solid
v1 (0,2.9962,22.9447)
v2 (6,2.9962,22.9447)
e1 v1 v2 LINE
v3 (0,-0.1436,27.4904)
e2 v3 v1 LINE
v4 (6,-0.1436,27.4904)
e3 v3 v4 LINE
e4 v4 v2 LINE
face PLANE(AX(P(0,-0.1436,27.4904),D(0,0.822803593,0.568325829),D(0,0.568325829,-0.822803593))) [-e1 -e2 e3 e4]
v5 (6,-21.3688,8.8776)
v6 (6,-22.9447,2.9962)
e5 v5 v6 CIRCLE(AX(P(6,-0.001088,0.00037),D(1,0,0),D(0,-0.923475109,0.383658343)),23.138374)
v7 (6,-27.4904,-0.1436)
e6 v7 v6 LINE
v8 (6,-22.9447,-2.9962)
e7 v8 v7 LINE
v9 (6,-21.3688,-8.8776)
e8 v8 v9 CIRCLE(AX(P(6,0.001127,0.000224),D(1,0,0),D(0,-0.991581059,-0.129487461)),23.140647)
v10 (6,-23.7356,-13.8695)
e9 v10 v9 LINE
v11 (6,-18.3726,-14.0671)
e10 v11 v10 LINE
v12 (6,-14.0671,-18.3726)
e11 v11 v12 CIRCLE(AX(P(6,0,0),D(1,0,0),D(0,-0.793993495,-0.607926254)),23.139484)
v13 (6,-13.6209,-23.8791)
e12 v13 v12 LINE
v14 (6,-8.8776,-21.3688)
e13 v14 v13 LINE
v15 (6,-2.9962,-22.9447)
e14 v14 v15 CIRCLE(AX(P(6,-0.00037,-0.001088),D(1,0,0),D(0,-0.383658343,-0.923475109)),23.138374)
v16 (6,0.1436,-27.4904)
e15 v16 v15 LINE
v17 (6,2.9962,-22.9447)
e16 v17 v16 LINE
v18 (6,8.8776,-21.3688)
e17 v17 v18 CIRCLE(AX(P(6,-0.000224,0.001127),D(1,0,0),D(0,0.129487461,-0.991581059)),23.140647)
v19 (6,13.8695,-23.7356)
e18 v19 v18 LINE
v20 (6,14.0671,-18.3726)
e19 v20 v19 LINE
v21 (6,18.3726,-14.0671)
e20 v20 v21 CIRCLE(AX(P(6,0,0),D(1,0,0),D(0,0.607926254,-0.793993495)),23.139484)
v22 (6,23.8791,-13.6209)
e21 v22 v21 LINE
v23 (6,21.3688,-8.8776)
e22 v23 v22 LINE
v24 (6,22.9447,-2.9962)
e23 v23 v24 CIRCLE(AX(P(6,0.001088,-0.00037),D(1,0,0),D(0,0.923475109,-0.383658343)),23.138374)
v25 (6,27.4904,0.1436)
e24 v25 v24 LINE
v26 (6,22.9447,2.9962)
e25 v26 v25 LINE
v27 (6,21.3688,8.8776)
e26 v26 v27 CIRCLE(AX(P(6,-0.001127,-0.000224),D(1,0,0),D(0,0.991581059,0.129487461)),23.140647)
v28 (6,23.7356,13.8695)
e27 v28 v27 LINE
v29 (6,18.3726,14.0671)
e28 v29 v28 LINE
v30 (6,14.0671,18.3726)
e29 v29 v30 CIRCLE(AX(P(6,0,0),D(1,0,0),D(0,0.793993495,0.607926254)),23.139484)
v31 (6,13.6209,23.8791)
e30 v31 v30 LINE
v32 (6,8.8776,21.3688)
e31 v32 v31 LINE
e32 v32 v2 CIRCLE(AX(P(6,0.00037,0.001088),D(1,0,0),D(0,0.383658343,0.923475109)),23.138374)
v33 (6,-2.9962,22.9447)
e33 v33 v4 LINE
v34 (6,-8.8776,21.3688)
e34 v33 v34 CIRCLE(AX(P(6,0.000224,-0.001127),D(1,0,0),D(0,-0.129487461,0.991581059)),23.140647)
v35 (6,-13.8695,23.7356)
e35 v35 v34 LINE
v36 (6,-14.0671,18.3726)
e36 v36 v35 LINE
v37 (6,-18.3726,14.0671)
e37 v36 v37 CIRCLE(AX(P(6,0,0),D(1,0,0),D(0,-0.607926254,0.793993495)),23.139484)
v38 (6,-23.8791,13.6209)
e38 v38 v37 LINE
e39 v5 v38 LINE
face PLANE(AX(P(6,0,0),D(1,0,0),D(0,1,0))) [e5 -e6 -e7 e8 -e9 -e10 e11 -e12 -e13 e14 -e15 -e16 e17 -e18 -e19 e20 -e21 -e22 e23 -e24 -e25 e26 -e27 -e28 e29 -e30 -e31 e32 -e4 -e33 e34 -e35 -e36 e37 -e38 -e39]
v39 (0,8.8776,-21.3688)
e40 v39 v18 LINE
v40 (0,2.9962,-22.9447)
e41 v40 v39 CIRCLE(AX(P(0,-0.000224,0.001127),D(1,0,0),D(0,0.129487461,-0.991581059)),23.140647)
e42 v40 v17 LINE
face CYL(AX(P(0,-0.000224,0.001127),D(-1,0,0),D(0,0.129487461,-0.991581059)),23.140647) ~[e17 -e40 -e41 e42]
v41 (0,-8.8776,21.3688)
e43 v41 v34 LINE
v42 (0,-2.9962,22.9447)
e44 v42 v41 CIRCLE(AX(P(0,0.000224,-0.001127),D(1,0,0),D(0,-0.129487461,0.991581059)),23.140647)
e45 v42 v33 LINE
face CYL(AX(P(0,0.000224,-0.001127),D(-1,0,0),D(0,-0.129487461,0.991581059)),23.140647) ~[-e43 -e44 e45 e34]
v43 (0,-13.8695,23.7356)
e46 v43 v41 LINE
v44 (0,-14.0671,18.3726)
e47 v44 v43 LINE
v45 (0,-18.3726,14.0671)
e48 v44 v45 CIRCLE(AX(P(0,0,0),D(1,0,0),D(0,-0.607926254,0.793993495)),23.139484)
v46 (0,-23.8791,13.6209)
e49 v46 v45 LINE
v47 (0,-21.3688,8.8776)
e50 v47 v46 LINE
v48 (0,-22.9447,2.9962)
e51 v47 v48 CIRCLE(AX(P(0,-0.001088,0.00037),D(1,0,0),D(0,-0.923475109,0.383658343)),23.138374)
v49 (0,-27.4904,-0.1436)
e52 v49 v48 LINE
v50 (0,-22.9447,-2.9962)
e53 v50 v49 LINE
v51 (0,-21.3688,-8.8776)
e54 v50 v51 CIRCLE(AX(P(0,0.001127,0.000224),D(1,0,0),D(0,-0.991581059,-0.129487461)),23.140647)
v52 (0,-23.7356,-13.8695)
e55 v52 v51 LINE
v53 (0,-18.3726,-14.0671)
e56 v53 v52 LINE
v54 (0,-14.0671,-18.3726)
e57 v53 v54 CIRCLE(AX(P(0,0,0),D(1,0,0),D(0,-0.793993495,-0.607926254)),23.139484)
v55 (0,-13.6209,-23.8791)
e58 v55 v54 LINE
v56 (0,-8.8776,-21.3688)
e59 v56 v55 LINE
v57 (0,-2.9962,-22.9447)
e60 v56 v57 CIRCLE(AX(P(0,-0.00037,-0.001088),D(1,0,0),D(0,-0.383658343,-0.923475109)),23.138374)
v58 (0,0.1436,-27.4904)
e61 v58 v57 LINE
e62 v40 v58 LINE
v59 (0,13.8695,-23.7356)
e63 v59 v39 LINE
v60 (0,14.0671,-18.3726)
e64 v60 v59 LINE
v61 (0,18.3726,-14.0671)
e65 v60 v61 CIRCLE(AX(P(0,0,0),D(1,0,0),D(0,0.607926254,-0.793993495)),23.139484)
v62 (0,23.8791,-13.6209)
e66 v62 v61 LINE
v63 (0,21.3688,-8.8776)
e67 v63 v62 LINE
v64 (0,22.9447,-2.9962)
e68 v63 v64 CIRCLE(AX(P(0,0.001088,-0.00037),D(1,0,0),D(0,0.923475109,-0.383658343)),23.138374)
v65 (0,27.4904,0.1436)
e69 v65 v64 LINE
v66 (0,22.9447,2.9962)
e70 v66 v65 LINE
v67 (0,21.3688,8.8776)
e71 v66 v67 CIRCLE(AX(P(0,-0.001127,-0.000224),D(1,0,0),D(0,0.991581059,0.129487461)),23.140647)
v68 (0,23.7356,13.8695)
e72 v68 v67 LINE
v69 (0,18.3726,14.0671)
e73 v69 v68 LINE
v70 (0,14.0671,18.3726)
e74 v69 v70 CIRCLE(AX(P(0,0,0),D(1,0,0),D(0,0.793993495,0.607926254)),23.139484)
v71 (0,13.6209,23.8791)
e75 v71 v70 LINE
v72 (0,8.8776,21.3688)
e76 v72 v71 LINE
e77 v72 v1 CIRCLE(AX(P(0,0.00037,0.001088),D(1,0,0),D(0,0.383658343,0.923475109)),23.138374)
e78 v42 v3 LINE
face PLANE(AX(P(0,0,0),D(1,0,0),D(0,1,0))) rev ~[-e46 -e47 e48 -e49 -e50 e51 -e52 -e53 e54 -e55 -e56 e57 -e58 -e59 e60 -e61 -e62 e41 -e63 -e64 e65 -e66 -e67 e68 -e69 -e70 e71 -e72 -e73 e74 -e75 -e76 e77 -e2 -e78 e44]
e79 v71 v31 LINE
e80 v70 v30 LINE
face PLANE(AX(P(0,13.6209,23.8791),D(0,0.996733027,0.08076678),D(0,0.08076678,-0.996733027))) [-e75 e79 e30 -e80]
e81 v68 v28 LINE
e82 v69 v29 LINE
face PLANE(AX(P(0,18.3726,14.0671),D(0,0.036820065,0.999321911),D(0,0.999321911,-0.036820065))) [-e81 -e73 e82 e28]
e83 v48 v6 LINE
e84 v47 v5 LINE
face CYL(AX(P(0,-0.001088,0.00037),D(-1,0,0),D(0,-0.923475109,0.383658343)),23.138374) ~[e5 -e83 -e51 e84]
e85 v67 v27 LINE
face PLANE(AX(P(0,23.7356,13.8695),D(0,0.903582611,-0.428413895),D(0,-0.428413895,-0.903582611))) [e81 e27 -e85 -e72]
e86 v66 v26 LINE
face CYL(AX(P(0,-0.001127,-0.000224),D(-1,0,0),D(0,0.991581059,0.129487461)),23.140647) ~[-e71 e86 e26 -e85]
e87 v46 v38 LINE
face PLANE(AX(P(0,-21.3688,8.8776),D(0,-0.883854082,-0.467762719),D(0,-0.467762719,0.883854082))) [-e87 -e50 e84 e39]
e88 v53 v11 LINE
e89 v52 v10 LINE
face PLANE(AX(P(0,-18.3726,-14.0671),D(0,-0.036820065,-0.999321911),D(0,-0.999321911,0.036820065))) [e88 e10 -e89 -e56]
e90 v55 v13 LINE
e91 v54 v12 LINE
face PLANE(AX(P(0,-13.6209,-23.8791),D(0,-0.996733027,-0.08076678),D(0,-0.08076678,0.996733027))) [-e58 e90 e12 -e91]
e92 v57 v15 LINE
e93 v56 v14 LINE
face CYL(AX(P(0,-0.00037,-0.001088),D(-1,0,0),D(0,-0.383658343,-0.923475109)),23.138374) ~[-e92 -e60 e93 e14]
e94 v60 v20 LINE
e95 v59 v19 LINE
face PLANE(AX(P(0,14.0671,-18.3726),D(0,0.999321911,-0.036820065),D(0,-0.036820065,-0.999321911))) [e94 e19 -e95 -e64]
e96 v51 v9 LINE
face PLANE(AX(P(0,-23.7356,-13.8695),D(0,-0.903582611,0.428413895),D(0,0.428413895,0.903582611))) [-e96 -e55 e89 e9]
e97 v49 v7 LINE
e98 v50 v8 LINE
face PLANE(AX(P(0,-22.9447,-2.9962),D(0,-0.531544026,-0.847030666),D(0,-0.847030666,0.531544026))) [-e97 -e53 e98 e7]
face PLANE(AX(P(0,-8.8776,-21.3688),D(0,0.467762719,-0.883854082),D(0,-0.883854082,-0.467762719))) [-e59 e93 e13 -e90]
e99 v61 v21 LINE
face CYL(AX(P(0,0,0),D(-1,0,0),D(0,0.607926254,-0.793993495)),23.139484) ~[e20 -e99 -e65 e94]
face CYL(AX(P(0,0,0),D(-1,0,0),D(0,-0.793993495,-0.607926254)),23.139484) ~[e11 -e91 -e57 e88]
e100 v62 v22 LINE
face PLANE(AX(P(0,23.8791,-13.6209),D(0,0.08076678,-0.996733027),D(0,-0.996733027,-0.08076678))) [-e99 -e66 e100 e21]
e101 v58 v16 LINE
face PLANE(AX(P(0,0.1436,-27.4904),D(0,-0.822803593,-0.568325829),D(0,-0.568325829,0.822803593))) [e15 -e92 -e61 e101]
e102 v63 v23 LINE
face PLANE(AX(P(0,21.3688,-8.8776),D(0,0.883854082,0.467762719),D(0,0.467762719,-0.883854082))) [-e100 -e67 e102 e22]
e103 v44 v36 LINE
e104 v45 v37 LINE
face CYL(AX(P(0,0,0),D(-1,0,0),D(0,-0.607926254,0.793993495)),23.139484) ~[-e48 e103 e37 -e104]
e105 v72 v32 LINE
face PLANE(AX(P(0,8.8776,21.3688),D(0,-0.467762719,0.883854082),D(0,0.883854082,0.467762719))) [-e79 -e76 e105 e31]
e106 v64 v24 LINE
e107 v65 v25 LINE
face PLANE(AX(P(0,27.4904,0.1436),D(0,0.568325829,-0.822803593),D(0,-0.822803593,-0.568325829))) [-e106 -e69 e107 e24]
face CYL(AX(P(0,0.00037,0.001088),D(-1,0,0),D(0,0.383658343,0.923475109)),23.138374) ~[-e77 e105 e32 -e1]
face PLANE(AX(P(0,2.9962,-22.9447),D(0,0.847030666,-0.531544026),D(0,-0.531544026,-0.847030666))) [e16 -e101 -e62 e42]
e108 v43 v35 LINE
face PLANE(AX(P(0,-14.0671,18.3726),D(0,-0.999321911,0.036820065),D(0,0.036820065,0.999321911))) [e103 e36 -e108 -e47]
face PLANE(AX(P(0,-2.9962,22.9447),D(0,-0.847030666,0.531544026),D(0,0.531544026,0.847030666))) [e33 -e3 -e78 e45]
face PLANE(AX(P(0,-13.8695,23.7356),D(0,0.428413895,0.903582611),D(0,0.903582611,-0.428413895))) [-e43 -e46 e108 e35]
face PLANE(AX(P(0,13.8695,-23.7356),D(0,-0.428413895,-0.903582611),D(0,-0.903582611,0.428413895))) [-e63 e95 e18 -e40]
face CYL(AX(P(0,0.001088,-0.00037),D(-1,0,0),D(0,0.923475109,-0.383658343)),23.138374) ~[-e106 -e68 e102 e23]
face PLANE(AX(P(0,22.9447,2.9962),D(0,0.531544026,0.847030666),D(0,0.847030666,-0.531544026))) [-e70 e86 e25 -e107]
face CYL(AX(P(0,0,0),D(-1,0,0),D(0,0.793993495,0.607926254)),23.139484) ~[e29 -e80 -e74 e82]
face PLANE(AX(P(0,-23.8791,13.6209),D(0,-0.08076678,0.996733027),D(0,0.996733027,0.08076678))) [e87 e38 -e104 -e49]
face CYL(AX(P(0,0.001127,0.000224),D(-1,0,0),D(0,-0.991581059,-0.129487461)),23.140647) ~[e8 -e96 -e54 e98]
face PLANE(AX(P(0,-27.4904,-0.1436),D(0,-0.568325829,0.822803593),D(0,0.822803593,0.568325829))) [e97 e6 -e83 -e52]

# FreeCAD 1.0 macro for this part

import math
import FreeCAD as App
import Part
import Sketcher

V = App.Vector
Q = App.Units.Quantity

doc = App.newDocument("Part")
body = doc.addObject("PartDesign::Body", "Body")

sketch1 = body.newObject("Sketcher::SketchObject", "Sketch")
sketch1.AttachmentSupport = (doc.getObject("YZ_Plane"), [""])
sketch1.MapMode = "FlatFace"
sketch1.addGeometry([
    Part.LineSegment(V(27.4904, 0.1436, 0), V(22.9447, 2.9962, 0)),
    Part.ArcOfCircle(Part.Circle(V(-0.001127, -0.000224, 0), V(0, 0, 1), 23.140647), math.radians(7.439976), math.radians(22.559727)),
    Part.LineSegment(V(21.3688, 8.8776, 0), V(23.7356, 13.8695, 0)),
    Part.LineSegment(V(23.7356, 13.8695, 0), V(18.3726, 14.0671, 0)),
    Part.ArcOfCircle(Part.Circle(V(0, 0, 0), V(0, 0, 1), 23.139484), math.radians(37.439708), math.radians(52.560292)),
    Part.LineSegment(V(14.0671, 18.3726, 0), V(13.6209, 23.8791, 0)),
    Part.LineSegment(V(13.6209, 23.8791, 0), V(8.8776, 21.3688, 0)),
    Part.ArcOfCircle(Part.Circle(V(0.00037, 0.001088, 0), V(0, 0, 1), 23.138374), math.radians(67.439526), math.radians(82.560772)),
    Part.LineSegment(V(2.9962, 22.9447, 0), V(-0.1436, 27.4904, 0)),
    Part.LineSegment(V(-0.1436, 27.4904, 0), V(-2.9962, 22.9447, 0)),
    Part.ArcOfCircle(Part.Circle(V(0.000224, -0.001127, 0), V(0, 0, 1), 23.140647), math.radians(97.439976), math.radians(112.559727)),
    Part.LineSegment(V(-8.8776, 21.3688, 0), V(-13.8695, 23.7356, 0)),
    Part.LineSegment(V(-13.8695, 23.7356, 0), V(-14.0671, 18.3726, 0)),
    Part.ArcOfCircle(Part.Circle(V(0, 0, 0), V(0, 0, 1), 23.139484), math.radians(127.439708), math.radians(142.560292)),
    Part.LineSegment(V(-18.3726, 14.0671, 0), V(-23.8791, 13.6209, 0)),
    Part.LineSegment(V(-23.8791, 13.6209, 0), V(-21.3688, 8.8776, 0)),
    Part.ArcOfCircle(Part.Circle(V(-0.001088, 0.00037, 0), V(0, 0, 1), 23.138374), math.radians(157.439526), math.radians(172.560772)),
    Part.LineSegment(V(-22.9447, 2.9962, 0), V(-27.4904, -0.1436, 0)),
    Part.LineSegment(V(-27.4904, -0.1436, 0), V(-22.9447, -2.9962, 0)),
    Part.ArcOfCircle(Part.Circle(V(0.001127, 0.000224, 0), V(0, 0, 1), 23.140647), math.radians(-172.560024), math.radians(-157.440273)),
    Part.LineSegment(V(-21.3688, -8.8776, 0), V(-23.7356, -13.8695, 0)),
    Part.LineSegment(V(-23.7356, -13.8695, 0), V(-18.3726, -14.0671, 0)),
    Part.ArcOfCircle(Part.Circle(V(0, 0, 0), V(0, 0, 1), 23.139484), math.radians(-142.560292), math.radians(-127.439708)),
    Part.LineSegment(V(-14.0671, -18.3726, 0), V(-13.6209, -23.8791, 0)),
    Part.LineSegment(V(-13.6209, -23.8791, 0), V(-8.8776, -21.3688, 0)),
    Part.ArcOfCircle(Part.Circle(V(-0.00037, -0.001088, 0), V(0, 0, 1), 23.138374), math.radians(-112.560474), math.radians(-97.439228)),
    Part.LineSegment(V(-2.9962, -22.9447, 0), V(0.1436, -27.4904, 0)),
    Part.LineSegment(V(0.1436, -27.4904, 0), V(2.9962, -22.9447, 0)),
    Part.ArcOfCircle(Part.Circle(V(-0.000224, 0.001127, 0), V(0, 0, 1), 23.140647), math.radians(-82.560024), math.radians(-67.440273)),
    Part.LineSegment(V(8.8776, -21.3688, 0), V(13.8695, -23.7356, 0)),
    Part.LineSegment(V(13.8695, -23.7356, 0), V(14.0671, -18.3726, 0)),
    Part.ArcOfCircle(Part.Circle(V(0, 0, 0), V(0, 0, 1), 23.139484), math.radians(-52.560292), math.radians(-37.439708)),
    Part.LineSegment(V(18.3726, -14.0671, 0), V(23.8791, -13.6209, 0)),
    Part.LineSegment(V(23.8791, -13.6209, 0), V(21.3688, -8.8776, 0)),
    Part.ArcOfCircle(Part.Circle(V(0.001088, -0.00037, 0), V(0, 0, 1), 23.138374), math.radians(-22.560474), math.radians(-7.439228)),
    Part.LineSegment(V(22.9447, -2.9962, 0), V(27.4904, 0.1436, 0)),
], False)
sketch1.addConstraint([
    Sketcher.Constraint("Coincident", 0, 2, 1, 1),
    Sketcher.Constraint("Coincident", 1, 2, 2, 1),
    Sketcher.Constraint("Coincident", 2, 2, 3, 1),
    Sketcher.Constraint("Coincident", 3, 2, 4, 1),
    Sketcher.Constraint("Coincident", 4, 2, 5, 1),
    Sketcher.Constraint("Coincident", 5, 2, 6, 1),
    Sketcher.Constraint("Coincident", 6, 2, 7, 1),
    Sketcher.Constraint("Coincident", 7, 2, 8, 1),
    Sketcher.Constraint("Coincident", 8, 2, 9, 1),
    Sketcher.Constraint("Coincident", 9, 2, 10, 1),
    Sketcher.Constraint("Coincident", 10, 2, 11, 1),
    Sketcher.Constraint("Coincident", 11, 2, 12, 1),
    Sketcher.Constraint("Coincident", 12, 2, 13, 1),
    Sketcher.Constraint("Coincident", 13, 2, 14, 1),
    Sketcher.Constraint("Coincident", 14, 2, 15, 1),
    Sketcher.Constraint("Coincident", 15, 2, 16, 1),
    Sketcher.Constraint("Coincident", 16, 2, 17, 1),
    Sketcher.Constraint("Coincident", 17, 2, 18, 1),
    Sketcher.Constraint("Coincident", 18, 2, 19, 1),
    Sketcher.Constraint("Coincident", 19, 2, 20, 1),
    Sketcher.Constraint("Coincident", 20, 2, 21, 1),
    Sketcher.Constraint("Coincident", 21, 2, 22, 1),
    Sketcher.Constraint("Coincident", 22, 2, 23, 1),
    Sketcher.Constraint("Coincident", 23, 2, 24, 1),
    Sketcher.Constraint("Coincident", 24, 2, 25, 1),
    Sketcher.Constraint("Coincident", 25, 2, 26, 1),
    Sketcher.Constraint("Coincident", 26, 2, 27, 1),
    Sketcher.Constraint("Coincident", 27, 2, 28, 1),
    Sketcher.Constraint("Coincident", 28, 2, 29, 1),
    Sketcher.Constraint("Coincident", 29, 2, 30, 1),
    Sketcher.Constraint("Coincident", 30, 2, 31, 1),
    Sketcher.Constraint("Coincident", 31, 2, 32, 1),
    Sketcher.Constraint("Coincident", 32, 2, 33, 1),
    Sketcher.Constraint("Coincident", 33, 2, 34, 1),
    Sketcher.Constraint("Coincident", 34, 2, 35, 1),
    Sketcher.Constraint("Coincident", 35, 2, 0, 1),
    Sketcher.Constraint("Coincident", 4, 3, -1, 1),
    Sketcher.Constraint("Coincident", 13, 3, -1, 1),
    Sketcher.Constraint("Coincident", 22, 3, -1, 1),
    Sketcher.Constraint("Coincident", 31, 3, -1, 1),
    Sketcher.Constraint("Equal", 1, 10),
    Sketcher.Constraint("Equal", 4, 13),
    Sketcher.Constraint("Equal", 7, 16),
    Sketcher.Constraint("Equal", 10, 19),
    Sketcher.Constraint("Equal", 13, 22),
    Sketcher.Constraint("Equal", 16, 25),
    Sketcher.Constraint("Equal", 19, 28),
    Sketcher.Constraint("Equal", 22, 31),
    Sketcher.Constraint("Equal", 25, 34),
    Sketcher.Constraint("Symmetric", 1, 3, 19, 3, -1, 1),
    Sketcher.Constraint("Symmetric", 7, 3, 25, 3, -1, 1),
    Sketcher.Constraint("Symmetric", 10, 3, 28, 3, -1, 1),
    Sketcher.Constraint("Symmetric", 16, 3, 34, 3, -1, 1),
    Sketcher.Constraint("Symmetric", 2, 2, 20, 2, -1, 1),
    Sketcher.Constraint("Symmetric", 5, 2, 23, 2, -1, 1),
    Sketcher.Constraint("Symmetric", 8, 2, 26, 2, -1, 1),
    Sketcher.Constraint("Symmetric", 11, 2, 29, 2, -1, 1),
    Sketcher.Constraint("Symmetric", 14, 2, 32, 2, -1, 1),
    Sketcher.Constraint("Symmetric", 17, 2, 35, 2, -1, 1),
    Sketcher.Constraint("Symmetric", 16, 3, 19, 3, -2),
    Sketcher.Constraint("Symmetric", 10, 3, 25, 3, -2),
    Sketcher.Constraint("Symmetric", 7, 2, 9, 2, -2),
    Sketcher.Constraint("Symmetric", 6, 2, 10, 2, -2),
    Sketcher.Constraint("Symmetric", 1, 2, 15, 2, -2),
    Sketcher.Constraint("Symmetric", 0, 2, 16, 2, -2),
    Sketcher.Constraint("Perpendicular", 0, 9),
    Sketcher.Constraint("Perpendicular", 2, 11),
    Sketcher.Constraint("Perpendicular", 3, 12),
    Sketcher.Constraint("Perpendicular", 5, 14),
    Sketcher.Constraint("Perpendicular", 6, 15),
    Sketcher.Constraint("Perpendicular", 8, 17),
    Sketcher.Constraint("Perpendicular", 9, 18),
    Sketcher.Constraint("Perpendicular", 11, 20),
    Sketcher.Constraint("Perpendicular", 12, 21),
    Sketcher.Constraint("Perpendicular", 14, 23),
    Sketcher.Constraint("Perpendicular", 15, 24),
    Sketcher.Constraint("Perpendicular", 17, 26),
    Sketcher.Constraint("Perpendicular", 18, 27),
    Sketcher.Constraint("Perpendicular", 20, 29),
    Sketcher.Constraint("Perpendicular", 21, 30),
    Sketcher.Constraint("Perpendicular", 23, 32),
    Sketcher.Constraint("Perpendicular", 24, 33),
    Sketcher.Constraint("Perpendicular", 26, 35),
    Sketcher.Constraint("Horizontal", 4, 2, 12, 2),
    Sketcher.Constraint("Horizontal", 3, 2, 13, 2),
    Sketcher.Constraint("Equal", 0, 3),
    Sketcher.Constraint("Equal", 2, 5),
    Sketcher.Constraint("Equal", 3, 6),
    Sketcher.Constraint("Equal", 5, 8),
    Sketcher.Constraint("Equal", 6, 9),
    Sketcher.Constraint("Equal", 8, 11),
    Sketcher.Constraint("Equal", 9, 12),
    Sketcher.Constraint("Angle", 0, Q("147.8902 deg")),
    Sketcher.Constraint("Angle", 3, Q("177.89 deg")),
    Sketcher.Constraint("Angle", 6, Q("-152.1108 deg")),
    Sketcher.Constraint("Radius", 1, 23.1406),
    Sketcher.Constraint("Radius", 4, 23.1395),
    Sketcher.Constraint("Radius", 7, 23.1384),
    Sketcher.Constraint("DistanceY", -1, 1, 3, 2, 14.067),
    Sketcher.Constraint("DistanceX", -1, 1, 5, 2, 13.621),
])
pad1 = body.newObject("PartDesign::Pad", "Pad")
pad1.Profile = sketch1
pad1.Length = 6

doc.recompute()
